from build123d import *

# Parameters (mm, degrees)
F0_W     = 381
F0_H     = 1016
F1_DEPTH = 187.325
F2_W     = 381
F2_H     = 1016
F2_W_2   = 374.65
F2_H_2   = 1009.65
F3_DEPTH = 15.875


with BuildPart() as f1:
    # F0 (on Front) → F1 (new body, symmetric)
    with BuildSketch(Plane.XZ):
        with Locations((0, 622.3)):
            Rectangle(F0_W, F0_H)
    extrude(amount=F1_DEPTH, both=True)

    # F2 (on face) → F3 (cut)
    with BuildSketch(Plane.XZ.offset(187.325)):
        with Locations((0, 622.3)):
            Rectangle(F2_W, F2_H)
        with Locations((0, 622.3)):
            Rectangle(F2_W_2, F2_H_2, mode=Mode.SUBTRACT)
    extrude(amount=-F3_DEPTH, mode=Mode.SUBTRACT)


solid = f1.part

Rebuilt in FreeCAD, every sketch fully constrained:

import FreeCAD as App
import Part
import Sketcher

V = App.Vector
Q = App.Units.Quantity


def add_polygon(sketch, points):
    """Adds a closed chain of lines whose ends are joined by coincident constraints."""
    first, n = sketch.GeometryCount, len(points)
    for a, b in zip(points, points[1:] + points[:1]):
        sketch.addGeometry(Part.LineSegment(App.Vector(*a, 0), App.Vector(*b, 0)), False)
    for i in range(n):
        sketch.addConstraint(Sketcher.Constraint("Coincident", first + i, 2, first + (i + 1) % n, 1))

doc = App.newDocument("Part")
body = doc.addObject("PartDesign::Body", "Body")

# Sketch on XZ plane
sketch1 = body.newObject("Sketcher::SketchObject", "Sketch")
sketch1.AttachmentSupport = (doc.getObject("XZ_Plane"), [""])
sketch1.MapMode = "FlatFace"
add_polygon(sketch1, [(-190.5, 1130.3), (-190.5, 114.3), (190.5, 114.3), (190.5, 1130.3)])  # lines 0-3
sketch1.addConstraint([
    Sketcher.Constraint("Vertical", 0),
    Sketcher.Constraint("Horizontal", 1),
    Sketcher.Constraint("Vertical", 2),
    Sketcher.Constraint("Horizontal", 3),
    Sketcher.Constraint("DistanceX", 1, 1, 1, 2, Q("15 in")),
    Sketcher.Constraint("DistanceY", 0, 2, 0, 1, Q("40 in")),
    Sketcher.Constraint("DistanceX", 0, 2, -1, 1, Q("7.5 in")),
    Sketcher.Constraint("DistanceY", -1, 1, 0, 2, Q("4.5 in")),
])
pad1 = body.newObject("PartDesign::Pad", "Pad")
pad1.Profile = sketch1
pad1.Length = Q("14.75 in")
pad1.Midplane = True

# Sketch on XZ plane
sketch2 = body.newObject("Sketcher::SketchObject", "Sketch001")
sketch2.AttachmentSupport = (doc.getObject("XZ_Plane"), [""])
sketch2.MapMode = "FlatFace"
sketch2.AttachmentOffset = App.Placement(V(0, 0, 7.375 * 25.4), App.Rotation())
add_polygon(sketch2, [(-190.5, 1130.3), (-190.5, 114.3), (190.5, 114.3), (190.5, 1130.3)])  # lines 0-3
add_polygon(sketch2, [(187.325, 117.475), (-187.325, 117.475), (-187.325, 1127.125), (187.325, 1127.125)])  # lines 4-7
sketch2.addConstraint([
    Sketcher.Constraint("Vertical", 0),
    Sketcher.Constraint("Horizontal", 1),
    Sketcher.Constraint("Vertical", 2),
    Sketcher.Constraint("Horizontal", 3),
    Sketcher.Constraint("Horizontal", 4),
    Sketcher.Constraint("Vertical", 5),
    Sketcher.Constraint("Horizontal", 6),
    Sketcher.Constraint("Vertical", 7),
    Sketcher.Constraint("DistanceX", 1, 1, 1, 2, Q("15 in")),
    Sketcher.Constraint("DistanceY", 0, 2, 0, 1, Q("40 in")),
    Sketcher.Constraint("DistanceX", 4, 2, 4, 1, Q("14.75 in")),
    Sketcher.Constraint("DistanceY", 5, 1, 5, 2, Q("39.75 in")),
    Sketcher.Constraint("DistanceX", 0, 2, -1, 1, Q("7.5 in")),
    Sketcher.Constraint("DistanceY", -1, 1, 0, 2, Q("4.5 in")),
    Sketcher.Constraint("DistanceX", 4, 2, -1, 1, Q("7.375 in")),
    Sketcher.Constraint("DistanceY", -1, 1, 4, 2, Q("4.625 in")),
])
pocket1 = body.newObject("PartDesign::Pocket", "Pocket")
pocket1.Profile = sketch2
pocket1.Length = Q("0.625 in")

doc.recompute()
